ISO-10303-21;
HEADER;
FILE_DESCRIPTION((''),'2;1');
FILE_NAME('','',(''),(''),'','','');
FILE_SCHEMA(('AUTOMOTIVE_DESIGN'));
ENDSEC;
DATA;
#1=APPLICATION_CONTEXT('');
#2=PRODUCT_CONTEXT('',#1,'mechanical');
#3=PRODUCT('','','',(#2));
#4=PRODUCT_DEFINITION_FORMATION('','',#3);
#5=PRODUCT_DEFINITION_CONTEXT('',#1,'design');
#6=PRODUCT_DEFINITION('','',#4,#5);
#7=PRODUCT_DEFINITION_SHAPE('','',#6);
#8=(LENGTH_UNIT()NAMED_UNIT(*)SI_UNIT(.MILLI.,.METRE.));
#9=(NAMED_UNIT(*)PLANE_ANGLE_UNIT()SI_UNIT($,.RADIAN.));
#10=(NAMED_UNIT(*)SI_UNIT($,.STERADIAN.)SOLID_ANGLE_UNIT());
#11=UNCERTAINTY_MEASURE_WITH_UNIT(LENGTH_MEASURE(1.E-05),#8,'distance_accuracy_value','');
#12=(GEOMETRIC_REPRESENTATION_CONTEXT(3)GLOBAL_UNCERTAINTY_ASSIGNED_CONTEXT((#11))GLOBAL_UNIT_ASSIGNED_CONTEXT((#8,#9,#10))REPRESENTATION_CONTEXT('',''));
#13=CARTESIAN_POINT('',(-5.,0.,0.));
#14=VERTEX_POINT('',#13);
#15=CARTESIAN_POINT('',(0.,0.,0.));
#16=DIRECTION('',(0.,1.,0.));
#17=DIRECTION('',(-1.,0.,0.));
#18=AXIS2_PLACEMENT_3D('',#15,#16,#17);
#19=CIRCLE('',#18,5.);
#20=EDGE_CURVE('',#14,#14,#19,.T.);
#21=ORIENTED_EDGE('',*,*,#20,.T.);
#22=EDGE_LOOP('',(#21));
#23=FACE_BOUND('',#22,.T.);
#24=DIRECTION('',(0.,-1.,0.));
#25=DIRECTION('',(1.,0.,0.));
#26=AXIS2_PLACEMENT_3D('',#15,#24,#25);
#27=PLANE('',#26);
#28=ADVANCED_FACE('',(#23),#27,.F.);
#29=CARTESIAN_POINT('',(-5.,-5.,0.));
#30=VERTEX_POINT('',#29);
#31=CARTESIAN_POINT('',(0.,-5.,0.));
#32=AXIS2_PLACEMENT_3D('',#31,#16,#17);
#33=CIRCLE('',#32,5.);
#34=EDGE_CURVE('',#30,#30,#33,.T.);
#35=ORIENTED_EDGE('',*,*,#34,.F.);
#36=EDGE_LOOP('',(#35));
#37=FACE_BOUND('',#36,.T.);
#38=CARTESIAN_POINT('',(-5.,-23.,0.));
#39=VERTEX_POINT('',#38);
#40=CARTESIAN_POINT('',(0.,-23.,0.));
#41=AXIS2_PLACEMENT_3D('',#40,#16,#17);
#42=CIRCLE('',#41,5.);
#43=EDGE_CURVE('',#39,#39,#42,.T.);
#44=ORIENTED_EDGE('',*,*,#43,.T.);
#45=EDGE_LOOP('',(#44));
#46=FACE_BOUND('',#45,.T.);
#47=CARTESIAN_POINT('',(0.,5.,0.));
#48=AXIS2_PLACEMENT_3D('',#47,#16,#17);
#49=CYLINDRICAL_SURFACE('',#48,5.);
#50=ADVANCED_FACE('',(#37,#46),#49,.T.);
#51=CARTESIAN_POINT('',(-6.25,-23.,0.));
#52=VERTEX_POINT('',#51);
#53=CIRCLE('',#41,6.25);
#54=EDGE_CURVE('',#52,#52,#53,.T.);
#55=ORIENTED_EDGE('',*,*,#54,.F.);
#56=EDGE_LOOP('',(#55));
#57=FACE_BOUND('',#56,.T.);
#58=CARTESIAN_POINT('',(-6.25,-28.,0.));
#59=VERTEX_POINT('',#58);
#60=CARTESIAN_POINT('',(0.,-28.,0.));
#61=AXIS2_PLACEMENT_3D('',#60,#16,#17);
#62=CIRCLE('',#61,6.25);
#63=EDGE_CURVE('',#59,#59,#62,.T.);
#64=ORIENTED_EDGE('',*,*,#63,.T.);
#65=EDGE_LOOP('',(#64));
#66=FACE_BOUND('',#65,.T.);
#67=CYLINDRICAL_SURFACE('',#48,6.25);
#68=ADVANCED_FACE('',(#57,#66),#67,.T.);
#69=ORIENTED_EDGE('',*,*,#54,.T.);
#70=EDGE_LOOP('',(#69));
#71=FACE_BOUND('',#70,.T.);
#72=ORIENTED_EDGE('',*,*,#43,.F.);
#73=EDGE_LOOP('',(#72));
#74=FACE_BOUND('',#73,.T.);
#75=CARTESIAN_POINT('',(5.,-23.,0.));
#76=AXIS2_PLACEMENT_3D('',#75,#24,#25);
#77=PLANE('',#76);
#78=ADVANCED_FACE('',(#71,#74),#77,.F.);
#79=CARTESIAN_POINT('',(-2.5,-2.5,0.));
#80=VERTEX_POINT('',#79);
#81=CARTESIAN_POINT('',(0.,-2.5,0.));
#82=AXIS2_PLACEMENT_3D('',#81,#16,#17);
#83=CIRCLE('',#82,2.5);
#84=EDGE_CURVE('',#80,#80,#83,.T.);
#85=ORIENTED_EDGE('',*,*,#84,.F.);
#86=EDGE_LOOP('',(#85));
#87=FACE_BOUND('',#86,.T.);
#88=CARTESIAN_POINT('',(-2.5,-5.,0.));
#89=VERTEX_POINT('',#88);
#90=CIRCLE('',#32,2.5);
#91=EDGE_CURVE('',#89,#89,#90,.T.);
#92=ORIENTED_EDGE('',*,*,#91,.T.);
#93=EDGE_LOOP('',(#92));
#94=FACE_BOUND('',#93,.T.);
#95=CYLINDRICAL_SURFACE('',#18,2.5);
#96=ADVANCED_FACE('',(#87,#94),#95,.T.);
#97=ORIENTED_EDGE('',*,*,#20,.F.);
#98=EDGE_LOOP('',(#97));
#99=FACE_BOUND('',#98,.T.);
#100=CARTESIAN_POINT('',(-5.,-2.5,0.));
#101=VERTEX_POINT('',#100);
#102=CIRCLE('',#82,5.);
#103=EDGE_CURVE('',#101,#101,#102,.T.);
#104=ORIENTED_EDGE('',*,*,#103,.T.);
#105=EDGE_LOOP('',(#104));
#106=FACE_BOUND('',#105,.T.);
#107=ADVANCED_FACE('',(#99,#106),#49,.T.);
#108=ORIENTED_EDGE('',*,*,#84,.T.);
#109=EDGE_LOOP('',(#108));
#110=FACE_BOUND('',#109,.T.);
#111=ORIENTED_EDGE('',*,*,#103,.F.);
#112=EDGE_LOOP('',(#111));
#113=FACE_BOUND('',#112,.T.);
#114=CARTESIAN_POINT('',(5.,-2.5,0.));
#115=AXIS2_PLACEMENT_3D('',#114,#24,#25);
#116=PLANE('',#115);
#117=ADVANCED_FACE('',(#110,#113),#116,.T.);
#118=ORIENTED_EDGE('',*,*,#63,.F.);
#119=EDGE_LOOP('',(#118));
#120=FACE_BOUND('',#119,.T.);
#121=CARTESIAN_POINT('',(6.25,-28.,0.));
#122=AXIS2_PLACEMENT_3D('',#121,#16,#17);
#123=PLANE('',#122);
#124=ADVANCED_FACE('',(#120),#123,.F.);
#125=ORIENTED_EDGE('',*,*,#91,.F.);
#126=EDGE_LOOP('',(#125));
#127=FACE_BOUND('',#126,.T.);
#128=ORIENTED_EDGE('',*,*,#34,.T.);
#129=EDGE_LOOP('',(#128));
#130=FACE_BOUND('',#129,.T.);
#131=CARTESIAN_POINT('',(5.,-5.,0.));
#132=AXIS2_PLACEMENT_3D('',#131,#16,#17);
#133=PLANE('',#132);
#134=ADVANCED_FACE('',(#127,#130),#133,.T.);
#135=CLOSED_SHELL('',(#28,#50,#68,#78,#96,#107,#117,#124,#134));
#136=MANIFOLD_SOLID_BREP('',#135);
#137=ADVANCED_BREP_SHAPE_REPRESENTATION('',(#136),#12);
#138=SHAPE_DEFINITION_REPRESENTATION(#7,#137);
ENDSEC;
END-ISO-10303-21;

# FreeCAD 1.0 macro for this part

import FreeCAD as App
import Part
import Sketcher
from FreeCAD import Vector
Q = App.Units.Quantity


def add_polygon(sketch, points):
    """Adds a closed chain of lines whose ends are joined by coincident constraints."""
    first, n = sketch.GeometryCount, len(points)
    for a, b in zip(points, points[1:] + points[:1]):
        sketch.addGeometry(Part.LineSegment(App.Vector(*a, 0), App.Vector(*b, 0)), False)
    for i in range(n):
        sketch.addConstraint(Sketcher.Constraint("Coincident", first + i, 2, first + (i + 1) % n, 1))

doc = App.newDocument("Part")
body = doc.addObject("PartDesign::Body", "Body")

sketch1 = doc.addObject("Sketcher::SketchObject", "Sketch")
body.addObject(sketch1)
sketch1.AttachmentSupport = (doc.XY_Plane, [""])
sketch1.MapMode = "FlatFace"
add_polygon(sketch1, [(5, 0), (0, 0), (0, -28), (6.2, -28), (6.2, -23), (5, -23)])
sketch1.addConstraint(Sketcher.Constraint("Horizontal", 0))
sketch1.addConstraint(Sketcher.Constraint("Vertical", 1))
sketch1.addConstraint(Sketcher.Constraint("Horizontal", 2))
sketch1.addConstraint(Sketcher.Constraint("Vertical", 3))
sketch1.addConstraint(Sketcher.Constraint("Horizontal", 4))
sketch1.addConstraint(Sketcher.Constraint("Vertical", 5))
sketch1.addConstraint(Sketcher.Constraint("Coincident", 0, 2, -1, 1))
sketch1.addConstraint(Sketcher.Constraint("Equal", 0, 3))
sketch1.addConstraint(Sketcher.Constraint("DistanceX", 0, 2, 0, 1, Q("5 mm")))
sketch1.addConstraint(Sketcher.Constraint("DistanceY", 1, 2, 1, 1, Q("28 mm")))
sketch1.addConstraint(Sketcher.Constraint("DistanceX", 2, 1, 2, 2, Q("6.25 mm")))
revolution = doc.addObject("PartDesign::Revolution", "Revolution")
body.addObject(revolution)
revolution.Profile = sketch1
revolution.ReferenceAxis = (sketch1, ["V_Axis"])
revolution.Angle = 360

sketch2 = doc.addObject("Sketcher::SketchObject", "Sketch001")
body.addObject(sketch2)
sketch2.AttachmentSupport = (doc.XY_Plane, [""])
sketch2.MapMode = "FlatFace"
add_polygon(sketch2, [(2.5, -2.5), (2.5, -5), (5, -5), (5, -2.5)])
sketch2.addConstraint(Sketcher.Constraint("Vertical", 0))
sketch2.addConstraint(Sketcher.Constraint("Horizontal", 1))
sketch2.addConstraint(Sketcher.Constraint("Vertical", 2))
sketch2.addConstraint(Sketcher.Constraint("Horizontal", 3))
sketch2.addConstraint(Sketcher.Constraint("Equal", 3, 0))
sketch2.addConstraint(Sketcher.Constraint("DistanceX", 1, 1, 1, 2, Q("2.5 mm")))
sketch2.addConstraint(Sketcher.Constraint("DistanceY", 0, 2, -1, 1, Q("5 mm")))
sketch2.addConstraint(Sketcher.Constraint("DistanceX", -1, 1, 1, 2, Q("5 mm")))
groove = doc.addObject("PartDesign::Groove", "Groove")
body.addObject(groove)
groove.Profile = sketch2
groove.ReferenceAxis = (sketch2, ["V_Axis"])
groove.Angle = 360

doc.recompute()
